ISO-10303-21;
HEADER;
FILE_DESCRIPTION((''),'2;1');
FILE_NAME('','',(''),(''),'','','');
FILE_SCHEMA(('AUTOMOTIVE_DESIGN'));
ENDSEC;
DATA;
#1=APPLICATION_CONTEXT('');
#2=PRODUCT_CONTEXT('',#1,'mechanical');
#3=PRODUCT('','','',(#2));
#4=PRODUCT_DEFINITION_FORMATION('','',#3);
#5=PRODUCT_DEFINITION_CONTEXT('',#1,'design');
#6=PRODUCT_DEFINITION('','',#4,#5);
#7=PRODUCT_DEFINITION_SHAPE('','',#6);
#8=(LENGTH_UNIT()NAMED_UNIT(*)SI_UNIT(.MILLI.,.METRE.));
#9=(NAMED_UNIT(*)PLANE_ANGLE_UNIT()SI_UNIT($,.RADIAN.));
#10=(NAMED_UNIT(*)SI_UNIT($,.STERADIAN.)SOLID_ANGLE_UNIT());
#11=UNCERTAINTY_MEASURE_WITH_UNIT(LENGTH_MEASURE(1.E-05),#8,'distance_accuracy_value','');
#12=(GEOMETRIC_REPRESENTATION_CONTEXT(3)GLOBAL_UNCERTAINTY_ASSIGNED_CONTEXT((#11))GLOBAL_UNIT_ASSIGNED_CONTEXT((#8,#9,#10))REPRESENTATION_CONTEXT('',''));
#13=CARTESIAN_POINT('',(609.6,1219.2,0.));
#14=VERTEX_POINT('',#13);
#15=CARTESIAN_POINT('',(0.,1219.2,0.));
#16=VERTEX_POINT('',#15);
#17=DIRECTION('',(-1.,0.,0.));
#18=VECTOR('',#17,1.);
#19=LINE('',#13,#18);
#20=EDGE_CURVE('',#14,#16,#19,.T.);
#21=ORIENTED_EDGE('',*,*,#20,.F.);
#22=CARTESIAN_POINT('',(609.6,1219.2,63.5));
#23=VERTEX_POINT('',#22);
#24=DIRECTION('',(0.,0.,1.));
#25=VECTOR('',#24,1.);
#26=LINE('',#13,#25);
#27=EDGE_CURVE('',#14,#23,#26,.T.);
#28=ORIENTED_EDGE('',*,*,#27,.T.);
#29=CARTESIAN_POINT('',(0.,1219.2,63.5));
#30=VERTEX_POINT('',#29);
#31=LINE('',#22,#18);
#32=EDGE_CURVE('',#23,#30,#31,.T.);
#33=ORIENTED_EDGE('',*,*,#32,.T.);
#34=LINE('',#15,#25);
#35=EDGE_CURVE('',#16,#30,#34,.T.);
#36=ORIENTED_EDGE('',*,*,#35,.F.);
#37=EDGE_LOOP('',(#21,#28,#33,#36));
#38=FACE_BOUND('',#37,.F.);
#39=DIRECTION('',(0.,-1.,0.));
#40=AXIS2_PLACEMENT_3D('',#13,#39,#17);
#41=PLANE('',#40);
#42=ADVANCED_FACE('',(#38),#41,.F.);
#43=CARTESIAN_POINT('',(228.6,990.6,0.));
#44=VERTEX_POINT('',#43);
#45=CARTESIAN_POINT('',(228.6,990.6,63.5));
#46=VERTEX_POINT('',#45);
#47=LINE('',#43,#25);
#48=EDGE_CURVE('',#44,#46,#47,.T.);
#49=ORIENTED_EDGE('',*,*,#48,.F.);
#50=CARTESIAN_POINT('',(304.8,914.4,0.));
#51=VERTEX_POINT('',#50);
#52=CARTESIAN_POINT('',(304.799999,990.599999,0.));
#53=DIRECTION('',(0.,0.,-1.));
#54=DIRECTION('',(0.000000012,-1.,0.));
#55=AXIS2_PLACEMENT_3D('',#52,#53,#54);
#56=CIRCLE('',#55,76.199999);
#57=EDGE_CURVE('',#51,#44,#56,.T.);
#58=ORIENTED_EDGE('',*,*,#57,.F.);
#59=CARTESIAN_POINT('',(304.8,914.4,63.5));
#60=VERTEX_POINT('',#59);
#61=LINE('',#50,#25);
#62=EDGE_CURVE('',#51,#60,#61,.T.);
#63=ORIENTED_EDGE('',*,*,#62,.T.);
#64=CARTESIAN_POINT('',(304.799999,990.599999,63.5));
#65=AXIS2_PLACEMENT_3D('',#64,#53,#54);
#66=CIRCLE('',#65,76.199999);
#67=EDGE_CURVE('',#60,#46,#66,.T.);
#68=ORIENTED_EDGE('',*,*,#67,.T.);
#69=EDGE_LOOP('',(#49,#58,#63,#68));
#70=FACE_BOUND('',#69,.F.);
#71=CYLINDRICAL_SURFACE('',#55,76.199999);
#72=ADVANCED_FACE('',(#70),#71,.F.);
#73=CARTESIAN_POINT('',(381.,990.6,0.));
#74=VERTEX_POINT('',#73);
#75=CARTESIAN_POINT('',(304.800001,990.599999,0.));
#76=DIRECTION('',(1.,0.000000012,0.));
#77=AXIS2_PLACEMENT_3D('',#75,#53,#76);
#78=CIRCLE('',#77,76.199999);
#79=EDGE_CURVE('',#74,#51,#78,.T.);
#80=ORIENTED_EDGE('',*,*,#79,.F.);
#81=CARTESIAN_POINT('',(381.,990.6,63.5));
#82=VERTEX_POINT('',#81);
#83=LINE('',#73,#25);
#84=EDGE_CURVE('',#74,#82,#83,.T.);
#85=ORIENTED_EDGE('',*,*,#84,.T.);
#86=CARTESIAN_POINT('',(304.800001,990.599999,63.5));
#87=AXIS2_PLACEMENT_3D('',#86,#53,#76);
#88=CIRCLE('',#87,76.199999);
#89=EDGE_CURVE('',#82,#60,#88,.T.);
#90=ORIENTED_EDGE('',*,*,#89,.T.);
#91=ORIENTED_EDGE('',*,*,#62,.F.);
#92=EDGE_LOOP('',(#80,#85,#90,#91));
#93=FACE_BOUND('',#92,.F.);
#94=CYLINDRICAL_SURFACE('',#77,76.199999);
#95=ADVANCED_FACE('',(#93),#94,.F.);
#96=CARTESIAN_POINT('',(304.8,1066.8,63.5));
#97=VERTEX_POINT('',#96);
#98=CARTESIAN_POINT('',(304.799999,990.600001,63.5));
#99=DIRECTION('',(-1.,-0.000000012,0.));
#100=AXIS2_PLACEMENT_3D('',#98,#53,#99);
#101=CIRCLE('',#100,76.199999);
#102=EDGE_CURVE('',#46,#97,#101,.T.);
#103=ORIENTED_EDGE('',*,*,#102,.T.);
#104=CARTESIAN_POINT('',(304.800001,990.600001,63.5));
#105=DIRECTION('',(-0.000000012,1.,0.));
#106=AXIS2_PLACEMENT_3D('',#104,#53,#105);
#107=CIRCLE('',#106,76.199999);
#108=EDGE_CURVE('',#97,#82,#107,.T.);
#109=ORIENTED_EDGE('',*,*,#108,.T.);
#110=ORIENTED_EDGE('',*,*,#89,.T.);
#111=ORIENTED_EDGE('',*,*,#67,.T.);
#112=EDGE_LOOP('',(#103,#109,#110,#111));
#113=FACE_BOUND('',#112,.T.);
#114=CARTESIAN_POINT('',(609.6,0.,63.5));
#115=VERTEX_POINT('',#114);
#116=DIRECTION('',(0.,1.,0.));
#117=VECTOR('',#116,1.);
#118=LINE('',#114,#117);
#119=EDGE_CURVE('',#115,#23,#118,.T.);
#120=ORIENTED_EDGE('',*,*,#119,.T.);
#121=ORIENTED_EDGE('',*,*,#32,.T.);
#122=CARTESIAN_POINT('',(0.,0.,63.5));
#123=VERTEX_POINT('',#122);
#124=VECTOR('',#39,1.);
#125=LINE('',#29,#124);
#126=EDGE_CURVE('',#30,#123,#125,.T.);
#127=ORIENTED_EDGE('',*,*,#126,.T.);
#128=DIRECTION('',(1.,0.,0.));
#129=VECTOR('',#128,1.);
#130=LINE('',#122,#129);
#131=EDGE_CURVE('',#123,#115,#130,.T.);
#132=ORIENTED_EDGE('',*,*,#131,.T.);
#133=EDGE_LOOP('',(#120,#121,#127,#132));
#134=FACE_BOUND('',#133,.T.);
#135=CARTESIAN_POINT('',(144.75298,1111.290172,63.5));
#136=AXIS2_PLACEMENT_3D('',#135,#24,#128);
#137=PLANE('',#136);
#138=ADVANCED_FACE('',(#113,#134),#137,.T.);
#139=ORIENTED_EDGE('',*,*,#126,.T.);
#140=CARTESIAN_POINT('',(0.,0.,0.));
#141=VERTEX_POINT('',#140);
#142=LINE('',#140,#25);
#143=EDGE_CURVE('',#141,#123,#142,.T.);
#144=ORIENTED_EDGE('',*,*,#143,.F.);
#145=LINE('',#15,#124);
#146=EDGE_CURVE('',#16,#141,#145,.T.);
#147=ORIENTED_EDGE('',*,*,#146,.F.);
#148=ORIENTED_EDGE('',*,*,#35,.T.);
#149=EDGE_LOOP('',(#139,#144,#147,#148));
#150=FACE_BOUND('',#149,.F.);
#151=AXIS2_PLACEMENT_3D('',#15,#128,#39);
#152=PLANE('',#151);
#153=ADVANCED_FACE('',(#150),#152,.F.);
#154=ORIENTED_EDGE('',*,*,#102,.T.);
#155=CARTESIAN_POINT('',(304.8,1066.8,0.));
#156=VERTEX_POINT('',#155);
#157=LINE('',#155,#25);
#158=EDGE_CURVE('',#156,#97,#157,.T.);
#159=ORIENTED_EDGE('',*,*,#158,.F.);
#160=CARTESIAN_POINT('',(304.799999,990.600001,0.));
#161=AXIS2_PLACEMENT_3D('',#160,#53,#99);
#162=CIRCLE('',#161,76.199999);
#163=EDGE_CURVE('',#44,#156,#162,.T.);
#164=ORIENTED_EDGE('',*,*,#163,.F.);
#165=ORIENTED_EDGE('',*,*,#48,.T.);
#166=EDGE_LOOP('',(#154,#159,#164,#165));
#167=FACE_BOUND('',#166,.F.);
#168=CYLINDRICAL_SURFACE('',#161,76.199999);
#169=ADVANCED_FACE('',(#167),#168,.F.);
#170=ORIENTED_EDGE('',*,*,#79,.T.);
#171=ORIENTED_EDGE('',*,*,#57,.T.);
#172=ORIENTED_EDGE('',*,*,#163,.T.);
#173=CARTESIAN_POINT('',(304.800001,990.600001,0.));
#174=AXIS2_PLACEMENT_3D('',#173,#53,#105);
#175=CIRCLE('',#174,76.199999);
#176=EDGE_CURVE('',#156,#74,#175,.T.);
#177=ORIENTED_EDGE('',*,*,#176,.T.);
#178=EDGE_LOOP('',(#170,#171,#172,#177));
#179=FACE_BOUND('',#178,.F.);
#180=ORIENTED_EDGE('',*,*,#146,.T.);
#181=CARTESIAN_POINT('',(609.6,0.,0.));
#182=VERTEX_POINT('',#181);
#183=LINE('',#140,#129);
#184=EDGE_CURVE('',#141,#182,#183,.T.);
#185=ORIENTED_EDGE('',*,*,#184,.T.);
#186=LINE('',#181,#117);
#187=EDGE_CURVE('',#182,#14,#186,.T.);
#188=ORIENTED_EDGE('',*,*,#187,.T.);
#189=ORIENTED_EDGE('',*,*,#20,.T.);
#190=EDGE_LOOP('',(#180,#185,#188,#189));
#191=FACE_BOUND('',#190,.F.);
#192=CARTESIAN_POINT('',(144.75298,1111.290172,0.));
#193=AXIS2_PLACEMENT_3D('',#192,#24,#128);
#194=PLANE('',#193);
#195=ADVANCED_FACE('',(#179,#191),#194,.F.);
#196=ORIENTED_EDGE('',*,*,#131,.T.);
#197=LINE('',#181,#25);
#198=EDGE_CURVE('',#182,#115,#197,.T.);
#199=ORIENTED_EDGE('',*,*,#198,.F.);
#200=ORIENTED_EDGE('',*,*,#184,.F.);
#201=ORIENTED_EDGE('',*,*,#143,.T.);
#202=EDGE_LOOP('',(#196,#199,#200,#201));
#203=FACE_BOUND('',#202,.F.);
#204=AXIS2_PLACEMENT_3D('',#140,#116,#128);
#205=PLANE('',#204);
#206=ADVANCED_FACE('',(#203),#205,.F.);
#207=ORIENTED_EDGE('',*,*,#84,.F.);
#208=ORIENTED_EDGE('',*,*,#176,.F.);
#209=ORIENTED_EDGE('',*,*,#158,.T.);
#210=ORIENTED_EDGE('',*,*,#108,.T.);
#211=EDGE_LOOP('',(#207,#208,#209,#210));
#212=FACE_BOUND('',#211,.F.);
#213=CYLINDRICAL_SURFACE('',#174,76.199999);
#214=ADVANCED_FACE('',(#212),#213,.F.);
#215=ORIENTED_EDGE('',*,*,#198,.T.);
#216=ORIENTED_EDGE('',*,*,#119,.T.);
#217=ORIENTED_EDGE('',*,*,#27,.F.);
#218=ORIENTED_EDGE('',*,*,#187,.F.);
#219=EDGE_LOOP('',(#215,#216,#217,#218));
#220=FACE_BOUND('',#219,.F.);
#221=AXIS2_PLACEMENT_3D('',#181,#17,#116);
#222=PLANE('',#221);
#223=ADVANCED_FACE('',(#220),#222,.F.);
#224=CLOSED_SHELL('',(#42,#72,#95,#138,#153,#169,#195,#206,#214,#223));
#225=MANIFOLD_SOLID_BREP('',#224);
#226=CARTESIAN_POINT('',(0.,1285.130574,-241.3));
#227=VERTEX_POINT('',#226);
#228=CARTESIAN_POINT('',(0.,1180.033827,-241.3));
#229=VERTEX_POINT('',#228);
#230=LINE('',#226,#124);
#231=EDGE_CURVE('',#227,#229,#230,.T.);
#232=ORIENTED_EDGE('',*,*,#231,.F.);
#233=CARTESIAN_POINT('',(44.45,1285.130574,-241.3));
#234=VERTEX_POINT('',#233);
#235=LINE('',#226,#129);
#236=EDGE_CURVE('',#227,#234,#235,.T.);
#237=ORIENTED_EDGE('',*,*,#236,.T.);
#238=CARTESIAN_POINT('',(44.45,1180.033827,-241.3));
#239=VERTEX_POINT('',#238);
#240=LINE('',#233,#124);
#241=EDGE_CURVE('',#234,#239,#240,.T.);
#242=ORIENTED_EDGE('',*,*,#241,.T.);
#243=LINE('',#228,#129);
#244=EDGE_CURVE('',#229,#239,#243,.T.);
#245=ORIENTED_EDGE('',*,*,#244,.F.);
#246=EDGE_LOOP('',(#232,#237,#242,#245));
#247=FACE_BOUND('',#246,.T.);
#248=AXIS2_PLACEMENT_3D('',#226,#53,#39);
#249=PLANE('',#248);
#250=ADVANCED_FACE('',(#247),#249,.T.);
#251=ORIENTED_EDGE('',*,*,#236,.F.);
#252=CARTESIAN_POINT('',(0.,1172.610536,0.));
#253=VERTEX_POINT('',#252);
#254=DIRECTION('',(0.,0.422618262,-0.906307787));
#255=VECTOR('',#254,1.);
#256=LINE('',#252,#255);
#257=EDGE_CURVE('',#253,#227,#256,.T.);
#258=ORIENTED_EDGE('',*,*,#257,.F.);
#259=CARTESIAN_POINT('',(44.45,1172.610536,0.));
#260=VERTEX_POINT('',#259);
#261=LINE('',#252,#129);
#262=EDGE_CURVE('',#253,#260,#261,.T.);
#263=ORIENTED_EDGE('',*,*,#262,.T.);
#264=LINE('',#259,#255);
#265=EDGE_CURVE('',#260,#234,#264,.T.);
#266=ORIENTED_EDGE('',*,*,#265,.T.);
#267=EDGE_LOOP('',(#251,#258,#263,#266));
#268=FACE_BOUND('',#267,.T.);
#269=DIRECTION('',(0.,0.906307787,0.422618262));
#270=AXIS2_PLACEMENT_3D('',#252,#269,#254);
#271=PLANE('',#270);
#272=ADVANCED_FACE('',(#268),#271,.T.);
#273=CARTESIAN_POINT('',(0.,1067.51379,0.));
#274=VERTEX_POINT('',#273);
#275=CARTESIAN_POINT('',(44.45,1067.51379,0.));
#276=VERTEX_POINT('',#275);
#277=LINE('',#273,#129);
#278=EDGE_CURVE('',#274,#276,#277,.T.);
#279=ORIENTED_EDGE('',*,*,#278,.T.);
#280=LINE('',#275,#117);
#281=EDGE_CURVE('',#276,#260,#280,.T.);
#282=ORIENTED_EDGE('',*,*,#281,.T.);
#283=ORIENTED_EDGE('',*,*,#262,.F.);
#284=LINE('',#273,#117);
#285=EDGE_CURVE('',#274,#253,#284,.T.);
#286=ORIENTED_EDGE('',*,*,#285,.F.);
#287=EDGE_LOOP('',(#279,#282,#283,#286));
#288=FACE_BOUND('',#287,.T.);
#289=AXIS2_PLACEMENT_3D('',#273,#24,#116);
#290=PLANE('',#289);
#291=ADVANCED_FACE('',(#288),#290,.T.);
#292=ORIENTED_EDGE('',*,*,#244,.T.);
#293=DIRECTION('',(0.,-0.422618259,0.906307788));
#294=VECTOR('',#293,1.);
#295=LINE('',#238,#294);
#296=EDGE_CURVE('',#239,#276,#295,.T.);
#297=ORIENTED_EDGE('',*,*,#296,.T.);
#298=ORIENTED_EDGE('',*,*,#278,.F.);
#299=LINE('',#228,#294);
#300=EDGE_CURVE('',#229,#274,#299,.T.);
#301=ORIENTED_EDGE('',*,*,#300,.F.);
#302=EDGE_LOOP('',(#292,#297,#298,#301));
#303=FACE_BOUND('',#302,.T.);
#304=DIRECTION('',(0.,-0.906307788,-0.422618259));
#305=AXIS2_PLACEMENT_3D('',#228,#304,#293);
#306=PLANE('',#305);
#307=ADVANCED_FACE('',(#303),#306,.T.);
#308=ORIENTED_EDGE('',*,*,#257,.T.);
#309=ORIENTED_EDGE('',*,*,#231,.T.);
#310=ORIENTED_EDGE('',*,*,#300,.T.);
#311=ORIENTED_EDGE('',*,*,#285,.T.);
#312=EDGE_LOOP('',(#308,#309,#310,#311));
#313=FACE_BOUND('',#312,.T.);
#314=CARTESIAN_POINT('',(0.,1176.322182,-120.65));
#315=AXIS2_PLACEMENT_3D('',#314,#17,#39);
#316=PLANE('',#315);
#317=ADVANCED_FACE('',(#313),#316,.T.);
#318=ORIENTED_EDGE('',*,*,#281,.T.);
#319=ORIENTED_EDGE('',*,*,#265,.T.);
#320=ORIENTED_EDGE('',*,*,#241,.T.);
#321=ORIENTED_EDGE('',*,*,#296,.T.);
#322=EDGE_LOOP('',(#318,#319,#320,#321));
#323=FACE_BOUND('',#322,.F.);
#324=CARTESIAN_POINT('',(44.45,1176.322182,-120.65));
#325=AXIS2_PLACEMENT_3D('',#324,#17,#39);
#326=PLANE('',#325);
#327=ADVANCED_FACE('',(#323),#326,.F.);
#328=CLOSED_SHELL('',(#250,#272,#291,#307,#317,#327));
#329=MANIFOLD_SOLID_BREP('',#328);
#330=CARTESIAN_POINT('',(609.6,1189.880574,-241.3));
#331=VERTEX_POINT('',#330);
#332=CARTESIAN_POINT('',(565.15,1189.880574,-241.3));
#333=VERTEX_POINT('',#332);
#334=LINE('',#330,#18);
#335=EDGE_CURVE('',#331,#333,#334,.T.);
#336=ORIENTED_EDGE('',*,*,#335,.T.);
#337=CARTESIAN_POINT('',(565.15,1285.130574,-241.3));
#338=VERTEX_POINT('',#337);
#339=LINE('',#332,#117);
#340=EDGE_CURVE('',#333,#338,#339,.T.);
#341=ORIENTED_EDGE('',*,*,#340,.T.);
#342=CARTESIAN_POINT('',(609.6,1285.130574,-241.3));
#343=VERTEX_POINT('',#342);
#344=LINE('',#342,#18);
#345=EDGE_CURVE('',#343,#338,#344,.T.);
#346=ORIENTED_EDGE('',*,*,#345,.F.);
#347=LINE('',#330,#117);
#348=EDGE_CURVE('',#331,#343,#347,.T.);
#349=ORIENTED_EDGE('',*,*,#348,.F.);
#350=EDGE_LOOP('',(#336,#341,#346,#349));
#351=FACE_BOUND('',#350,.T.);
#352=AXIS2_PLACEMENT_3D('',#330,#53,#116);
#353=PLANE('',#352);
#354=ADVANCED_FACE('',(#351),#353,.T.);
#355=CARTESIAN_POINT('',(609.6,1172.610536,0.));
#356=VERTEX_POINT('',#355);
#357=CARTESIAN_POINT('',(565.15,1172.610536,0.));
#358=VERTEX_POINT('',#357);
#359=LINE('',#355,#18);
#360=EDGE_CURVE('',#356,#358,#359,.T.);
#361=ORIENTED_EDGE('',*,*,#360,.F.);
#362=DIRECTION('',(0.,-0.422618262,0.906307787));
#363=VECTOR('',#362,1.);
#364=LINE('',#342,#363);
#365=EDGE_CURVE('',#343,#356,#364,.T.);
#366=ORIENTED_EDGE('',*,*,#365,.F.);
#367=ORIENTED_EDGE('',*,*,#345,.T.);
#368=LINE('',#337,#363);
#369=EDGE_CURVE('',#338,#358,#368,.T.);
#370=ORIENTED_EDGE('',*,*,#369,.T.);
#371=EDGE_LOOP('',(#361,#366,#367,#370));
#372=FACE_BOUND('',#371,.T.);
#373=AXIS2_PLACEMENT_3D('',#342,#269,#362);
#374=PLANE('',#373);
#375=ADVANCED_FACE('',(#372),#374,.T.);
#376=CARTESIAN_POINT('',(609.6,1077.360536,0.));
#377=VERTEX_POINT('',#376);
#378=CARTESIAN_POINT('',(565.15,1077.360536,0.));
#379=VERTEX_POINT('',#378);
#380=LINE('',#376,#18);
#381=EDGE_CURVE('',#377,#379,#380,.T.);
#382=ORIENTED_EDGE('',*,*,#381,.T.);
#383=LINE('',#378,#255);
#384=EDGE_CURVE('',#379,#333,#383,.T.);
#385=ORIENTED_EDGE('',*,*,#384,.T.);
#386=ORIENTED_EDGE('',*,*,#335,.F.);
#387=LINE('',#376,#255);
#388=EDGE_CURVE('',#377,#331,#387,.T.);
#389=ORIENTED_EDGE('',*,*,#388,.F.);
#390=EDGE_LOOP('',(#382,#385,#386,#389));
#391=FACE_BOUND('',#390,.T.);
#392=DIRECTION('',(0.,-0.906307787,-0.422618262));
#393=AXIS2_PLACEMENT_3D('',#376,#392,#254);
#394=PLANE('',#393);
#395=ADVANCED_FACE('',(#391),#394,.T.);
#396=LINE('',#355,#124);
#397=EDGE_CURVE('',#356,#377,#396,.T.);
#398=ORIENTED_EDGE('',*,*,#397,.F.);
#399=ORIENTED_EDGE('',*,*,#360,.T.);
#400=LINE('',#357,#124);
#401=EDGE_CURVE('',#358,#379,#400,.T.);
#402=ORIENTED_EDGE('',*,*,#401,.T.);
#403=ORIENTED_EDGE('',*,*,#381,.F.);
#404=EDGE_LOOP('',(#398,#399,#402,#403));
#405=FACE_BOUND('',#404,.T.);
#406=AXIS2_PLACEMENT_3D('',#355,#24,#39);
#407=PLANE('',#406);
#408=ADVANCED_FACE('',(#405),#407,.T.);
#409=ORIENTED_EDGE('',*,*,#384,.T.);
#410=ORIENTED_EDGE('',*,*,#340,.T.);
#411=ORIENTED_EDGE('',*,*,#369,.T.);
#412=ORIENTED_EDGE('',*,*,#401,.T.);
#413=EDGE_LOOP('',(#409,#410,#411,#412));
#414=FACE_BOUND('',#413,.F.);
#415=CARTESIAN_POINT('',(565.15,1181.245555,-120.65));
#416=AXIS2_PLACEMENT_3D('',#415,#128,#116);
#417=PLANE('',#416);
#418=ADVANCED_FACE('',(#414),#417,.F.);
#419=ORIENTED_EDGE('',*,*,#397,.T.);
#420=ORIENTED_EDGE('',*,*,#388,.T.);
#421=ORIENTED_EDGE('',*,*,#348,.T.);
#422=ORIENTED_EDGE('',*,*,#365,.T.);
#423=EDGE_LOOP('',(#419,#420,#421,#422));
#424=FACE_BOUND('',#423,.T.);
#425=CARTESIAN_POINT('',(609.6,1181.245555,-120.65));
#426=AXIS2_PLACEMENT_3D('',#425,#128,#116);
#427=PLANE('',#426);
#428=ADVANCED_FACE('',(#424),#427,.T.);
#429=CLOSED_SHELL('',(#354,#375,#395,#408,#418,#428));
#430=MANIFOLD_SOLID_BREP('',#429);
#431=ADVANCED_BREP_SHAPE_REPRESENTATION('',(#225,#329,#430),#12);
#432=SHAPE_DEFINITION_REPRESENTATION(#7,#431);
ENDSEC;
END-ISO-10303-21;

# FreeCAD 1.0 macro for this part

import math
import FreeCAD as App
import Part
import Sketcher
from FreeCAD import Vector
Q = App.Units.Quantity


def add_polygon(sketch, points):
    """Adds a closed chain of lines whose ends are joined by coincident constraints."""
    first, n = sketch.GeometryCount, len(points)
    for a, b in zip(points, points[1:] + points[:1]):
        sketch.addGeometry(Part.LineSegment(App.Vector(*a, 0), App.Vector(*b, 0)), False)
    for i in range(n):
        sketch.addConstraint(Sketcher.Constraint("Coincident", first + i, 2, first + (i + 1) % n, 1))

doc = App.newDocument("Part")
body = doc.addObject("PartDesign::Body", "Body")

# Sketch on XY plane
sketch1 = body.newObject("Sketcher::SketchObject", "Sketch")
sketch1.AttachmentSupport = (doc.getObject("XY_Plane"), [""])
sketch1.MapMode = "FlatFace"
add_polygon(sketch1, [(0, 1219), (0, 0), (610, 0), (610, 1219)])  # lines 0-3
sketch1.addGeometry(Part.ArcOfCircle(Part.Circle(Vector(305, 991, 0), Vector(0, 0, 1), 76), math.radians(90), math.radians(180)), False)  # 4
sketch1.addGeometry(Part.ArcOfCircle(Part.Circle(Vector(305, 991, 0), Vector(0, 0, 1), 76), math.radians(0), math.radians(90)), False)  # 5
sketch1.addGeometry(Part.ArcOfCircle(Part.Circle(Vector(305, 991, 0), Vector(0, 0, 1), 76), math.radians(-90), math.radians(0)), False)  # 6
sketch1.addGeometry(Part.ArcOfCircle(Part.Circle(Vector(305, 991, 0), Vector(0, 0, 1), 76), math.radians(180), math.radians(270)), False)  # 7
sketch1.addConstraint([
    Sketcher.Constraint("Tangent", 4, 1, 5, 2),
    Sketcher.Constraint("Tangent", 5, 1, 6, 2),
    Sketcher.Constraint("Tangent", 6, 1, 7, 2),
    Sketcher.Constraint("Tangent", 7, 1, 4, 2),
    Sketcher.Constraint("Vertical", 0),
    Sketcher.Constraint("Horizontal", 1),
    Sketcher.Constraint("Vertical", 2),
    Sketcher.Constraint("Horizontal", 3),
    Sketcher.Constraint("Coincident", 0, 2, -1, 1),
    Sketcher.Constraint("Equal", 4, 5),
    Sketcher.Constraint("Horizontal", 7, 3, 5, 1),
    Sketcher.Constraint("Horizontal", 5, 1, 7, 1),
    Sketcher.Constraint("Vertical", 7, 3, 4, 1),
    Sketcher.Constraint("Vertical", 4, 1, 6, 1),
    Sketcher.Constraint("Radius", 4, Q("3 in")),
    Sketcher.Constraint("DistanceX", 1, 1, 1, 2, Q("24 in")),
    Sketcher.Constraint("DistanceY", 0, 2, 0, 1, Q("48 in")),
    Sketcher.Constraint("DistanceX", -1, 1, 4, 3, Q("12 in")),
    Sketcher.Constraint("DistanceY", -1, 1, 4, 3, Q("39 in")),
])
pad1 = body.newObject("PartDesign::Pad", "Pad")
pad1.Profile = sketch1
pad1.Length = Q("2.5 in")
body2 = doc.addObject("PartDesign::Body", "Body001")

# Sketch on YZ plane
sketch2 = body2.newObject("Sketcher::SketchObject", "Sketch001")
sketch2.AttachmentSupport = (doc.getObject("YZ_Plane001"), [""])
sketch2.MapMode = "FlatFace"
add_polygon(sketch2, [(1068, 0), (1173, 0), (1285, -241), (1180, -241)])  # lines 0-3
sketch2.addConstraint([
    Sketcher.Constraint("Horizontal", 0),
    Sketcher.Constraint("Horizontal", 2),
    Sketcher.Constraint("PointOnObject", 0, 2, -1),
    Sketcher.Constraint("Parallel", 1, 3),
    Sketcher.Constraint("Angle", 1, Q("-65 deg")),
    Sketcher.Constraint("DistanceY", 1, 2, -1, 1, Q("9.5 in")),
    Sketcher.Constraint("DistanceX", 0, 1, 0, 2, Q("105.096746 mm")),
    Sketcher.Constraint("DistanceX", -1, 1, 3, 2, Q("1067.51379 mm")),
])
pad2 = body2.newObject("PartDesign::Pad", "Pad001")
pad2.Profile = sketch2
pad2.Length = Q("1.75 in")
body3 = doc.addObject("PartDesign::Body", "Body002")

# Sketch on YZ plane
sketch3 = body3.newObject("Sketcher::SketchObject", "Sketch002")
sketch3.AttachmentSupport = (doc.getObject("YZ_Plane002"), [""])
sketch3.MapMode = "FlatFace"
sketch3.AttachmentOffset = App.Placement(Vector(0, 0, 24 * 25.4), App.Rotation())
add_polygon(sketch3, [(1173, 0), (1077, 0), (1190, -241), (1285, -241)])  # lines 0-3
sketch3.addConstraint([
    Sketcher.Constraint("Horizontal", 0),
    Sketcher.Constraint("Horizontal", 2),
    Sketcher.Constraint("PointOnObject", 0, 2, -1),
    Sketcher.Constraint("Parallel", 1, 3),
    Sketcher.Constraint("Angle", 1, Q("-65 deg")),
    Sketcher.Constraint("DistanceX", 0, 2, 0, 1, Q("3.75 in")),
    Sketcher.Constraint("DistanceY", 1, 2, -1, 1, Q("9.5 in")),
    Sketcher.Constraint("DistanceX", -1, 1, 0, 2, Q("1077.360536 mm")),
])
pad3 = body3.newObject("PartDesign::Pad", "Pad002")
pad3.Profile = sketch3
pad3.Length = Q("1.75 in")
pad3.Reversed = True

doc.recompute()
